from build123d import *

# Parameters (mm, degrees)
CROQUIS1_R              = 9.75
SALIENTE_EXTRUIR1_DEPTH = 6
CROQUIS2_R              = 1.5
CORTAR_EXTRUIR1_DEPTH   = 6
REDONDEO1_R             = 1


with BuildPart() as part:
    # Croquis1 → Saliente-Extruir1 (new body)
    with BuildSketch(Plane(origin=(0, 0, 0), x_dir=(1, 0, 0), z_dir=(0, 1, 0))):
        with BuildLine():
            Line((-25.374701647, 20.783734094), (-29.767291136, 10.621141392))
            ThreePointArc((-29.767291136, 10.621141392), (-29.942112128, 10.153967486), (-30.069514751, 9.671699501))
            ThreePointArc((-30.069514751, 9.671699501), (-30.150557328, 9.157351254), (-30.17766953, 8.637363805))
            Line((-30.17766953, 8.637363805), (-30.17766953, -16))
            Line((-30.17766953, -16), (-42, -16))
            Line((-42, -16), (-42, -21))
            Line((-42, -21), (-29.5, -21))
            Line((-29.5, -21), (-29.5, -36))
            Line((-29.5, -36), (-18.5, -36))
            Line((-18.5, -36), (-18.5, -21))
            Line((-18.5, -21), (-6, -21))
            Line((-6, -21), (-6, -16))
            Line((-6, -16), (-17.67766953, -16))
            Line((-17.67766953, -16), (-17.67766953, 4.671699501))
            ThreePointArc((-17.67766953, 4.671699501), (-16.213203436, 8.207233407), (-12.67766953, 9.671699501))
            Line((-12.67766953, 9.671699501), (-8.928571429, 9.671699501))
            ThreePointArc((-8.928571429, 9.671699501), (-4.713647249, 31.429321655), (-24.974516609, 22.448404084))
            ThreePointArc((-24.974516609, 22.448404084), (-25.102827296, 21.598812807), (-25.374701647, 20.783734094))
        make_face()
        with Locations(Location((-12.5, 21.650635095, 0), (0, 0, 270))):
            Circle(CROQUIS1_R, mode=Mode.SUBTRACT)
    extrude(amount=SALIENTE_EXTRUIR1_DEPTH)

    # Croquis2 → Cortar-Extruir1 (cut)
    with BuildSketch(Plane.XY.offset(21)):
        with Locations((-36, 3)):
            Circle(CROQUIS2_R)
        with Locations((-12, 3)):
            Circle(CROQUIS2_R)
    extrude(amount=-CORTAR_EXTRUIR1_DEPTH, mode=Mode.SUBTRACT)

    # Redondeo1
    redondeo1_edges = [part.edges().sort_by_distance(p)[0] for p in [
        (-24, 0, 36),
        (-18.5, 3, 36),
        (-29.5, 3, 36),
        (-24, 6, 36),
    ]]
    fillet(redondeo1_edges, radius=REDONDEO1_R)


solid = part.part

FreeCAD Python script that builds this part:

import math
import FreeCAD as App
import Part
import Sketcher
from FreeCAD import Vector


def edges_at(feature, points):
    """Names of the edges that pass closest to the given points."""
    edges = feature.Shape.Edges
    near = lambda p: min(range(len(edges)), key=lambda i: edges[i].distToShape(Part.Vertex(*p))[0])
    return sorted({f"Edge{near(p) + 1}" for p in points})

doc = App.newDocument("Part")
body = doc.addObject("PartDesign::Body", "Body")

sketch1 = doc.addObject("Sketcher::SketchObject", "Sketch")
body.addObject(sketch1)
sketch1.AttachmentSupport = (doc.XZ_Plane, [""])
sketch1.MapMode = "FlatFace"
sketch1.addGeometry(Part.LineSegment(Vector(-25.4, -20.8, 0), Vector(-29.8, -10.6, 0)), False)
sketch1.addGeometry(Part.ArcOfCircle(Part.Circle(Vector(-25.2, -8.6, 0), Vector(0, 0, 1), 5), math.radians(-168.06), math.radians(-156.62)), False)
sketch1.addGeometry(Part.ArcOfCircle(Part.Circle(Vector(-25.2, -8.6, 0), Vector(0, 0, 1), 5), math.radians(-180), math.radians(-168.06)), False)
sketch1.addGeometry(Part.LineSegment(Vector(-30.2, -8.6, 0), Vector(-30.2, 16, 0)), False)
sketch1.addGeometry(Part.LineSegment(Vector(-30.2, 16, 0), Vector(-42, 16, 0)), False)
sketch1.addGeometry(Part.LineSegment(Vector(-42, 16, 0), Vector(-42, 21, 0)), False)
sketch1.addGeometry(Part.LineSegment(Vector(-42, 21, 0), Vector(-29.5, 21, 0)), False)
sketch1.addGeometry(Part.LineSegment(Vector(-29.5, 21, 0), Vector(-29.5, 36, 0)), False)
sketch1.addGeometry(Part.LineSegment(Vector(-29.5, 36, 0), Vector(-18.5, 36, 0)), False)
sketch1.addGeometry(Part.LineSegment(Vector(-18.5, 36, 0), Vector(-18.5, 21, 0)), False)
sketch1.addGeometry(Part.LineSegment(Vector(-18.5, 21, 0), Vector(-6, 21, 0)), False)
sketch1.addGeometry(Part.LineSegment(Vector(-6, 21, 0), Vector(-6, 16, 0)), False)
sketch1.addGeometry(Part.LineSegment(Vector(-6, 16, 0), Vector(-17.7, 16, 0)), False)
sketch1.addGeometry(Part.LineSegment(Vector(-17.7, 16, 0), Vector(-17.7, -4.7, 0)), False)
sketch1.addGeometry(Part.ArcOfCircle(Part.Circle(Vector(-12.7, -4.7, 0), Vector(0, 0, 1), 5), math.radians(180), math.radians(270)), False)
sketch1.addGeometry(Part.LineSegment(Vector(-12.7, -9.7, 0), Vector(-8.9, -9.7, 0)), False)
sketch1.addGeometry(Part.ArcOfCircle(Part.Circle(Vector(-12.5, -21.7, 0), Vector(0, 0, 1), 12.5), math.radians(-176), math.radians(73)), False)
sketch1.addGeometry(Part.ArcOfCircle(Part.Circle(Vector(-30, -22.8, 0), Vector(0, 0, 1), 5), math.radians(3.66), math.radians(23.38)), False)
sketch1.addGeometry(Part.Circle(Vector(-12.5, -21.7, 0), Vector(0, 0, 1), 9.8), False)
sketch1.addConstraint(Sketcher.Constraint("Tangent", 0, 2, 1, 2))
sketch1.addConstraint(Sketcher.Constraint("Tangent", 1, 1, 2, 2))
sketch1.addConstraint(Sketcher.Constraint("Tangent", 2, 1, 3, 1))
sketch1.addConstraint(Sketcher.Constraint("Coincident", 3, 2, 4, 1))
sketch1.addConstraint(Sketcher.Constraint("Coincident", 4, 2, 5, 1))
sketch1.addConstraint(Sketcher.Constraint("Coincident", 5, 2, 6, 1))
sketch1.addConstraint(Sketcher.Constraint("Coincident", 6, 2, 7, 1))
sketch1.addConstraint(Sketcher.Constraint("Coincident", 7, 2, 8, 1))
sketch1.addConstraint(Sketcher.Constraint("Coincident", 8, 2, 9, 1))
sketch1.addConstraint(Sketcher.Constraint("Coincident", 9, 2, 10, 1))
sketch1.addConstraint(Sketcher.Constraint("Coincident", 10, 2, 11, 1))
sketch1.addConstraint(Sketcher.Constraint("Coincident", 11, 2, 12, 1))
sketch1.addConstraint(Sketcher.Constraint("Coincident", 12, 2, 13, 1))
sketch1.addConstraint(Sketcher.Constraint("Tangent", 13, 2, 14, 1))
sketch1.addConstraint(Sketcher.Constraint("Tangent", 14, 2, 15, 1))
sketch1.addConstraint(Sketcher.Constraint("Coincident", 15, 2, 16, 2))
sketch1.addConstraint(Sketcher.Constraint("Tangent", 16, 1, 17, 1))
sketch1.addConstraint(Sketcher.Constraint("Tangent", 17, 2, 0, 1))
sketch1.addConstraint(Sketcher.Constraint("Vertical", 3))
sketch1.addConstraint(Sketcher.Constraint("Horizontal", 4))
sketch1.addConstraint(Sketcher.Constraint("Vertical", 5))
sketch1.addConstraint(Sketcher.Constraint("Horizontal", 6))
sketch1.addConstraint(Sketcher.Constraint("Vertical", 7))
sketch1.addConstraint(Sketcher.Constraint("Horizontal", 8))
sketch1.addConstraint(Sketcher.Constraint("Vertical", 9))
sketch1.addConstraint(Sketcher.Constraint("Horizontal", 10))
sketch1.addConstraint(Sketcher.Constraint("Vertical", 11))
sketch1.addConstraint(Sketcher.Constraint("Horizontal", 12))
sketch1.addConstraint(Sketcher.Constraint("Vertical", 13))
sketch1.addConstraint(Sketcher.Constraint("Horizontal", 15))
sketch1.addConstraint(Sketcher.Constraint("Coincident", 18, 3, 16, 3))
sketch1.addConstraint(Sketcher.Constraint("Equal", 1, 2))
sketch1.addConstraint(Sketcher.Constraint("Equal", 2, 14))
sketch1.addConstraint(Sketcher.Constraint("Equal", 14, 17))
sketch1.addConstraint(Sketcher.Constraint("Horizontal", 6, 2, 9, 2))
sketch1.addConstraint(Sketcher.Constraint("Horizontal", 4, 2, 11, 2))
sketch1.addConstraint(Sketcher.Constraint("Horizontal", 1, 1, 14, 2))
sketch1.addConstraint(Sketcher.Constraint("Equal", 6, 10))
sketch1.addConstraint(Sketcher.Constraint("Radius", 1, 5.0))
sketch1.addConstraint(Sketcher.Constraint("Diameter", 18, 19.5))
sketch1.addConstraint(Sketcher.Constraint("Radius", 16, 12.5))
sketch1.addConstraint(Sketcher.Constraint("DistanceX", 8, 1, 8, 2, 11.0))
sketch1.addConstraint(Sketcher.Constraint("DistanceY", 5, 1, 5, 2, 5.0))
sketch1.addConstraint(Sketcher.Constraint("DistanceY", 7, 1, 7, 2, 15.0))
sketch1.addConstraint(Sketcher.Constraint("DistanceX", 6, 1, 6, 2, 12.5))
sketch1.addConstraint(Sketcher.Constraint("DistanceY", -1, 1, 3, 2, 16.0))
sketch1.addConstraint(Sketcher.Constraint("DistanceX", 4, 2, -1, 1, 42.0))
sketch1.addConstraint(Sketcher.Constraint("DistanceX", 16, 3, -1, 1, 12.5))
sketch1.addConstraint(Sketcher.Constraint("DistanceX", 1, 3, 14, 3, 12.5))
sketch1.addConstraint(Sketcher.Constraint("DistanceX", 15, 1, 15, 2, 3.749098))
sketch1.addConstraint(Sketcher.Constraint("DistanceY", 13, 2, 13, 1, 20.6717))
sketch1.addConstraint(Sketcher.Constraint("DistanceX", 1, 1, 16, 1, 5.094998))
sketch1.addConstraint(Sketcher.Constraint("DistanceX", 4, 2, 4, 1, 11.82233))
sketch1.addConstraint(Sketcher.Constraint("DistanceX", 17, 2, -1, 1, 25.374702))
pad1 = doc.addObject("PartDesign::Pad", "Pad")
body.addObject(pad1)
pad1.Profile = sketch1
pad1.Length = 6
pad1.Reversed = True

sketch2 = doc.addObject("Sketcher::SketchObject", "Sketch001")
body.addObject(sketch2)
sketch2.AttachmentSupport = (doc.XY_Plane, [""])
sketch2.MapMode = "FlatFace"
sketch2.AttachmentOffset = App.Placement(Vector(0, 0, 21), App.Rotation())
sketch2.addGeometry(Part.Circle(Vector(-36, 3, 0), Vector(0, 0, 1), 1.5), False)
sketch2.addGeometry(Part.Circle(Vector(-12, 3, 0), Vector(0, 0, 1), 1.5), False)
sketch2.addConstraint(Sketcher.Constraint("Equal", 0, 1))
sketch2.addConstraint(Sketcher.Constraint("Horizontal", 0, 3, 1, 3))
sketch2.addConstraint(Sketcher.Constraint("Diameter", 0, 3.0))
sketch2.addConstraint(Sketcher.Constraint("DistanceX", 0, 3, -1, 1, 36.0))
sketch2.addConstraint(Sketcher.Constraint("DistanceY", -1, 1, 0, 3, 3.0))
sketch2.addConstraint(Sketcher.Constraint("DistanceX", 1, 3, -1, 1, 12.0))
pocket1 = doc.addObject("PartDesign::Pocket", "Pocket")
body.addObject(pocket1)
pocket1.Profile = sketch2
pocket1.Length = 6
doc.recompute()

fillet = doc.addObject("PartDesign::Fillet", "Fillet")
body.addObject(fillet)
fillet.Base = (pocket1, edges_at(pocket1, [
    (-24, 0, 36),
    (-18.5, 3, 36),
    (-29.5, 3, 36),
    (-24, 6, 36),
]))
fillet.Radius = 1

doc.recompute()
